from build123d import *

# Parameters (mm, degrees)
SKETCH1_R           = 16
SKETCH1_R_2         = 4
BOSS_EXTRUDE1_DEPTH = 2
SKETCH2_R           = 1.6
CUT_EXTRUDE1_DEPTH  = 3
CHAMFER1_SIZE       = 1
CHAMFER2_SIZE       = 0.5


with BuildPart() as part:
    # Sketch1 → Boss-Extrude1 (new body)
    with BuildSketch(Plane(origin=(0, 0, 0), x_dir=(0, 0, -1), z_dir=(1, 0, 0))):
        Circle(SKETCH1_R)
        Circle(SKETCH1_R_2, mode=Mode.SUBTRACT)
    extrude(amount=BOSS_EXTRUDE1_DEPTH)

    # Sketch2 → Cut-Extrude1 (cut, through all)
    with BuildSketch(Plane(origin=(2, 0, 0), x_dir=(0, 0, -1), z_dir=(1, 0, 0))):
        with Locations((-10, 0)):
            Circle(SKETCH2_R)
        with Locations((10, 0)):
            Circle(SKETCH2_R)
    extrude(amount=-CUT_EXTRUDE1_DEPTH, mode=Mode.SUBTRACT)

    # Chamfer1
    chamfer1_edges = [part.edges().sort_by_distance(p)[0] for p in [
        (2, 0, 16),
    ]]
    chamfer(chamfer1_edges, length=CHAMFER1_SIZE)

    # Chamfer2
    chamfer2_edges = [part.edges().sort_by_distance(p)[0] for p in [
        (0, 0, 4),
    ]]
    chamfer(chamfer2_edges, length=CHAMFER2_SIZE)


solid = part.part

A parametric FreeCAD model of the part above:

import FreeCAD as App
import Part
import Sketcher


def edges_at(feature, points):
    """Names of the edges that pass closest to the given points."""
    edges = feature.Shape.Edges
    near = lambda p: min(range(len(edges)), key=lambda i: edges[i].distToShape(Part.Vertex(*p))[0])
    return sorted({f"Edge{near(p) + 1}" for p in points})

doc = App.newDocument("Part")
body = doc.addObject("PartDesign::Body", "Body")

# Sketch on YZ plane
sketch1 = body.newObject("Sketcher::SketchObject", "Sketch")
sketch1.AttachmentSupport = (doc.getObject("YZ_Plane"), [""])
sketch1.MapMode = "FlatFace"
sketch1.addGeometry(Part.Circle(App.Vector(0, 0, 0), App.Vector(0, 0, 1), 16), False)
sketch1.addGeometry(Part.Circle(App.Vector(0, 0, 0), App.Vector(0, 0, 1), 4), False)
sketch1.addConstraint(Sketcher.Constraint("Coincident", 0, 3, -1, 1))
sketch1.addConstraint(Sketcher.Constraint("Coincident", 1, 3, -1, 1))
sketch1.addConstraint(Sketcher.Constraint("Diameter", 0, 32.0))
sketch1.addConstraint(Sketcher.Constraint("Diameter", 1, 8.0))
pad1 = body.newObject("PartDesign::Pad", "Pad")
pad1.Profile = sketch1
pad1.Length = 2

# Sketch on YZ plane
sketch2 = body.newObject("Sketcher::SketchObject", "Sketch001")
sketch2.AttachmentSupport = (doc.getObject("YZ_Plane"), [""])
sketch2.MapMode = "FlatFace"
sketch2.AttachmentOffset = App.Placement(App.Vector(0, 0, 2), App.Rotation())
sketch2.addGeometry(Part.Circle(App.Vector(0, 10, 0), App.Vector(0, 0, 1), 1.6), False)
sketch2.addGeometry(Part.Circle(App.Vector(0, -10, 0), App.Vector(0, 0, 1), 1.6), False)
sketch2.addConstraint(Sketcher.Constraint("Equal", 0, 1))
sketch2.addConstraint(Sketcher.Constraint("Symmetric", 0, 3, 1, 3, -1, 1))
sketch2.addConstraint(Sketcher.Constraint("PointOnObject", 0, 3, -2))
sketch2.addConstraint(Sketcher.Constraint("Diameter", 0, 3.2))
sketch2.addConstraint(Sketcher.Constraint("DistanceY", -1, 1, 0, 3, 10.0))
pocket1 = body.newObject("PartDesign::Pocket", "Pocket")
pocket1.Profile = sketch2
pocket1.Type = "ThroughAll"
doc.recompute()

chamfer = body.newObject("PartDesign::Chamfer", "Chamfer")
chamfer.Base = (pocket1, edges_at(pocket1, [(2, 0, 16)]))
chamfer.Size = 1
doc.recompute()

chamfer2 = body.newObject("PartDesign::Chamfer", "Chamfer001")
chamfer2.Base = (chamfer, edges_at(chamfer, [(0, 0, 4)]))
chamfer2.Size = 0.5

doc.recompute()
